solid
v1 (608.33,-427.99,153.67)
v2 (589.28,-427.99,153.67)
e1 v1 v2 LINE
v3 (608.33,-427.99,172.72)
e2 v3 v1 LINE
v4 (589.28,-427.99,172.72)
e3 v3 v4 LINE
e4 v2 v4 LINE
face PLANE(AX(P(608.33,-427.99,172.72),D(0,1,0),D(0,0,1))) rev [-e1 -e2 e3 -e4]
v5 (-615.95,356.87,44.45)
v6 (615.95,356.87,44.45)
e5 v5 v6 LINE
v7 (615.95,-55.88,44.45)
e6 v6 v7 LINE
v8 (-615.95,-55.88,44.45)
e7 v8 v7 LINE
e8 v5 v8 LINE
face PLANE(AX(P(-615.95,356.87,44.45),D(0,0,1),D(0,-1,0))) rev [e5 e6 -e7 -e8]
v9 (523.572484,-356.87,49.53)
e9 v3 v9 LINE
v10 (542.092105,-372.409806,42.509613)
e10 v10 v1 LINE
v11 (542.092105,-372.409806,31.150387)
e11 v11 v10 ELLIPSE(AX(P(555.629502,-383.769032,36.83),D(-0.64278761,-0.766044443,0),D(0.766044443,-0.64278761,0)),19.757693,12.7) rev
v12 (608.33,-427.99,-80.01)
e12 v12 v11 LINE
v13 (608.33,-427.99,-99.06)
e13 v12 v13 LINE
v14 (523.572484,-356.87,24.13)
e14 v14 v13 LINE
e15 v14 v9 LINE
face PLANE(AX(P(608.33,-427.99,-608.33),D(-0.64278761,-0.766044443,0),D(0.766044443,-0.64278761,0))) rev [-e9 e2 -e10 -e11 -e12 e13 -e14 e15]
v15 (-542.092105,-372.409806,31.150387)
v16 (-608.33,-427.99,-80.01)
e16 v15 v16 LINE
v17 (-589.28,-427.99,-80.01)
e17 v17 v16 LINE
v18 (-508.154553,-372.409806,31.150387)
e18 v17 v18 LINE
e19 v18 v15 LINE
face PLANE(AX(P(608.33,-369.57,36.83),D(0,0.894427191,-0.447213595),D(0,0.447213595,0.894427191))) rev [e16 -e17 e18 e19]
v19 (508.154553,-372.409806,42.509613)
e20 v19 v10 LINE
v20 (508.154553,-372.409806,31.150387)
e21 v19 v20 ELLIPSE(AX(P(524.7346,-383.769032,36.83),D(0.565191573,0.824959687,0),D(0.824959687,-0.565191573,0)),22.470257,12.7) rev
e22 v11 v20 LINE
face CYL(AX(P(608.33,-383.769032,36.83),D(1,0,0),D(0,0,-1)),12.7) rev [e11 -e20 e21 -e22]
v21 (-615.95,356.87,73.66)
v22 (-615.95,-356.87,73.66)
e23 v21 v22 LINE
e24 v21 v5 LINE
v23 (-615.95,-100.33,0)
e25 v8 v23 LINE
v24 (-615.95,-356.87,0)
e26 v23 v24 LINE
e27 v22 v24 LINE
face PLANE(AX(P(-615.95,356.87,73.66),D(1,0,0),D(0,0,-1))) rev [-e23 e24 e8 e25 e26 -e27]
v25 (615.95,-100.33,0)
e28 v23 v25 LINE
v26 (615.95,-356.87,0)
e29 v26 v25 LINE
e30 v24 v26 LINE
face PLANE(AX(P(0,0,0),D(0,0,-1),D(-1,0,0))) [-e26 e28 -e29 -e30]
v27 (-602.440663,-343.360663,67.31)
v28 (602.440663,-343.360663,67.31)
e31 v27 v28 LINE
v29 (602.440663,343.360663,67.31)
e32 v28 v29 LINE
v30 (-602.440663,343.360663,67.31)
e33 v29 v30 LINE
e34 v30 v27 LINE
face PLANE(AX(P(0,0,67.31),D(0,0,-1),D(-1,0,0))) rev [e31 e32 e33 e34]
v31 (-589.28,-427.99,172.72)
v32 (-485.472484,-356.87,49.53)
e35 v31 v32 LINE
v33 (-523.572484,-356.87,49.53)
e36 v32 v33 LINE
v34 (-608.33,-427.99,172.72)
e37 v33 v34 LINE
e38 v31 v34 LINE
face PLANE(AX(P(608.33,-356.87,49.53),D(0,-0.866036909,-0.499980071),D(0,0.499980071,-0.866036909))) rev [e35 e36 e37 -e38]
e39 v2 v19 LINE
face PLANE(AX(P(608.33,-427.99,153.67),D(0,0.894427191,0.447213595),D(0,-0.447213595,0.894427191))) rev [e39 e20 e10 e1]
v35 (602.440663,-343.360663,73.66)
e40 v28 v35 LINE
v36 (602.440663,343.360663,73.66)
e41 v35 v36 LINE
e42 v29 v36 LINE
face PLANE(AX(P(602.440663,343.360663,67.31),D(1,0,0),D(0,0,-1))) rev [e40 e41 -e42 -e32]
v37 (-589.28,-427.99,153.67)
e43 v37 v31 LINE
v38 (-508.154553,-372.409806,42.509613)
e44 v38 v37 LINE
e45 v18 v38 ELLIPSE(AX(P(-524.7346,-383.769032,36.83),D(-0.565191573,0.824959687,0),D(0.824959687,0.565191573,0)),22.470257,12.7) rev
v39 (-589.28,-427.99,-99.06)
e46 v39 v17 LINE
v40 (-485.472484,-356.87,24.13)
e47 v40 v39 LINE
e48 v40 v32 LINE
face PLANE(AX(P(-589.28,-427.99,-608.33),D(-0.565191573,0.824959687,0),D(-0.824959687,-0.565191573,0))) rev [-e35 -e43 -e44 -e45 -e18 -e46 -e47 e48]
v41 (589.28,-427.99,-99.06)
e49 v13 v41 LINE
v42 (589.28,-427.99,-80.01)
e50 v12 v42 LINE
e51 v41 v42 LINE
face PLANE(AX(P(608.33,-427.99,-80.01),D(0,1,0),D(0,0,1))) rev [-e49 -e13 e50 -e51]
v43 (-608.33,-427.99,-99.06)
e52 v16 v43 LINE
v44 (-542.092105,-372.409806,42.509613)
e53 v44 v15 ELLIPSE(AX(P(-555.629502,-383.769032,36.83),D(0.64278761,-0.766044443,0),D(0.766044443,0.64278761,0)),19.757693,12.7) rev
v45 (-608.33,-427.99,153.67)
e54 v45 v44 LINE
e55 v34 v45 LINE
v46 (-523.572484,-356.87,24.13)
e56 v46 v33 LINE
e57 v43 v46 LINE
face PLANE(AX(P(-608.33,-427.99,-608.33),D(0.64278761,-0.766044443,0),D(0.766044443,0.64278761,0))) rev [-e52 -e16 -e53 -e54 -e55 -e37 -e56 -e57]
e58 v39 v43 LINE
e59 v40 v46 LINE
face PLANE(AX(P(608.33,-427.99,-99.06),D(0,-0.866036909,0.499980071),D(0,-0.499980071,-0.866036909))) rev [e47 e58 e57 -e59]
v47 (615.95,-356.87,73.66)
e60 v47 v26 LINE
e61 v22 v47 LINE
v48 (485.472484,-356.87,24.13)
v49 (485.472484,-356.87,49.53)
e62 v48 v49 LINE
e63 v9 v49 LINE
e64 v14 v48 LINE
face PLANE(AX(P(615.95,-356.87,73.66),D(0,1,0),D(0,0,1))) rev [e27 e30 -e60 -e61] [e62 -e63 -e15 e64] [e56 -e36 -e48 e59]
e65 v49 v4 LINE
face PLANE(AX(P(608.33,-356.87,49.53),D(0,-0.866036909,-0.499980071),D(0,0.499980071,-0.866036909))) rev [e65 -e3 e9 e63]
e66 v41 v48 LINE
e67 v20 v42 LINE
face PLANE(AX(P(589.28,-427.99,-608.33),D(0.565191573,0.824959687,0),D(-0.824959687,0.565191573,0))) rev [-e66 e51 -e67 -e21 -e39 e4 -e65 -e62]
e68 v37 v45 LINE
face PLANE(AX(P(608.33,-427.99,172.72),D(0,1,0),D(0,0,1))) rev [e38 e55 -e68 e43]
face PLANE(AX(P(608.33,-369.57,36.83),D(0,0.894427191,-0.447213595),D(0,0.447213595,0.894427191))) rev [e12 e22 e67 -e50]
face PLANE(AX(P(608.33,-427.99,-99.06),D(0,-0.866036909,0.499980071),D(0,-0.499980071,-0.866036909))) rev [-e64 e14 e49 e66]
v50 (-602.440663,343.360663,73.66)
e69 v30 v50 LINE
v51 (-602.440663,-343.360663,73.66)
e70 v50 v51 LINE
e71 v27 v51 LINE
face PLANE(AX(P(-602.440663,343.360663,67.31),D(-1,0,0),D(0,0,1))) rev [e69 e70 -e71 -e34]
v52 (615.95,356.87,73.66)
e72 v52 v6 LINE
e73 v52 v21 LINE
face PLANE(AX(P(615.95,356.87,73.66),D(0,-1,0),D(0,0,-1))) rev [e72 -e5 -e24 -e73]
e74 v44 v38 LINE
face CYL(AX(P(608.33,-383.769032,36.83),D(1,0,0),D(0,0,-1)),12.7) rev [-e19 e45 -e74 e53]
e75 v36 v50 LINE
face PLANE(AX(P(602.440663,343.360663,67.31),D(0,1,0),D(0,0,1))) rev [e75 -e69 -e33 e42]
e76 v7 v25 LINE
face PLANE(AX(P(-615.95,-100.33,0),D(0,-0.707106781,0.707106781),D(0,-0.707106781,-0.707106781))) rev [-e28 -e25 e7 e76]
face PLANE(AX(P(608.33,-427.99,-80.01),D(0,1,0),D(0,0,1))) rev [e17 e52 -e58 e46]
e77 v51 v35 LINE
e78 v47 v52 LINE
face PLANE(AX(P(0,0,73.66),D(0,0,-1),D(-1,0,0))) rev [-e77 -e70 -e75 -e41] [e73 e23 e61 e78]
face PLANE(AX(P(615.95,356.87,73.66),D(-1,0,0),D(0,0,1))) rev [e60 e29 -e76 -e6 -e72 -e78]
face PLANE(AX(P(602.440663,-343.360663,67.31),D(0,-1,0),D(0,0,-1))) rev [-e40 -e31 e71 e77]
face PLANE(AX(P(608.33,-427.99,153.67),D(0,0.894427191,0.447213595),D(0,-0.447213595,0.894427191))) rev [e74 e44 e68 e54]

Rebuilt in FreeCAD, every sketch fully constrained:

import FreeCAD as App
import Part
import Sketcher
from FreeCAD import Vector
Q = App.Units.Quantity


def edges_at(feature, points):
    """Names of the edges that pass closest to the given points."""
    edges = feature.Shape.Edges
    near = lambda p: min(range(len(edges)), key=lambda i: edges[i].distToShape(Part.Vertex(*p))[0])
    return sorted({f"Edge{near(p) + 1}" for p in points})

doc = App.newDocument("Part")
body = doc.addObject("PartDesign::Body", "Body")

# Sketch on XY plane
sketch1 = body.newObject("Sketcher::SketchObject", "Sketch")
sketch1.AttachmentSupport = (doc.getObject("XY_Plane"), [""])
sketch1.MapMode = "FlatFace"
sketch1.addGeometry(Part.LineSegment(Vector(-615.95, 356.87, 0), Vector(-615.95, -356.87, 0)), False)
sketch1.addGeometry(Part.LineSegment(Vector(-615.95, -356.87, 0), Vector(615.95, -356.87, 0)), False)
sketch1.addGeometry(Part.LineSegment(Vector(615.95, -356.87, 0), Vector(615.95, 356.87, 0)), False)
sketch1.addGeometry(Part.LineSegment(Vector(615.95, 356.87, 0), Vector(-615.95, 356.87, 0)), False)
sketch1.addConstraint(Sketcher.Constraint("Coincident", 0, 2, 1, 1))
sketch1.addConstraint(Sketcher.Constraint("Coincident", 1, 2, 2, 1))
sketch1.addConstraint(Sketcher.Constraint("Coincident", 2, 2, 3, 1))
sketch1.addConstraint(Sketcher.Constraint("Coincident", 3, 2, 0, 1))
sketch1.addConstraint(Sketcher.Constraint("Vertical", 0))
sketch1.addConstraint(Sketcher.Constraint("Horizontal", 1))
sketch1.addConstraint(Sketcher.Constraint("Vertical", 2))
sketch1.addConstraint(Sketcher.Constraint("Horizontal", 3))
sketch1.addConstraint(Sketcher.Constraint("Symmetric", 0, 2, 2, 2, -1, 1))
sketch1.addConstraint(Sketcher.Constraint("DistanceX", 1, 1, 1, 2, Q("48.5 in")))
sketch1.addConstraint(Sketcher.Constraint("DistanceY", 0, 2, 0, 1, Q("28.1 in")))
pad1 = body.newObject("PartDesign::Pad", "Pad")
pad1.Profile = sketch1
pad1.Length = Q("2.9 in")

# Sketch on YZ plane
sketch2 = body.newObject("Sketcher::SketchObject", "Sketch001")
sketch2.AttachmentSupport = (doc.getObject("YZ_Plane"), [""])
sketch2.MapMode = "FlatFace"
sketch2.addGeometry(Part.LineSegment(Vector(-356.87, 49.53, 0), Vector(-427.99, 172.72, 0)), False)
sketch2.addGeometry(Part.LineSegment(Vector(-427.99, 172.72, 0), Vector(-427.99, 153.67, 0)), False)
sketch2.addGeometry(Part.LineSegment(Vector(-427.99, 153.67, 0), Vector(-369.57, 36.83, 0)), False)
sketch2.addGeometry(Part.LineSegment(Vector(-369.57, 36.83, 0), Vector(-427.99, -80.01, 0)), False)
sketch2.addGeometry(Part.LineSegment(Vector(-427.99, -80.01, 0), Vector(-427.99, -99.06, 0)), False)
sketch2.addGeometry(Part.LineSegment(Vector(-427.99, -99.06, 0), Vector(-356.87, 24.13, 0)), False)
sketch2.addGeometry(Part.LineSegment(Vector(-356.87, 24.13, 0), Vector(-356.87, 49.53, 0)), False)
sketch2.addConstraint(Sketcher.Constraint("Coincident", 0, 2, 1, 1))
sketch2.addConstraint(Sketcher.Constraint("Coincident", 1, 2, 2, 1))
sketch2.addConstraint(Sketcher.Constraint("Coincident", 2, 2, 3, 1))
sketch2.addConstraint(Sketcher.Constraint("Coincident", 3, 2, 4, 1))
sketch2.addConstraint(Sketcher.Constraint("Coincident", 4, 2, 5, 1))
sketch2.addConstraint(Sketcher.Constraint("Coincident", 5, 2, 6, 1))
sketch2.addConstraint(Sketcher.Constraint("Coincident", 6, 2, 0, 1))
sketch2.addConstraint(Sketcher.Constraint("Vertical", 1))
sketch2.addConstraint(Sketcher.Constraint("Vertical", 4))
sketch2.addConstraint(Sketcher.Constraint("Vertical", 6))
sketch2.addConstraint(Sketcher.Constraint("Vertical", 1, 2, 3, 2))
sketch2.addConstraint(Sketcher.Constraint("Equal", 1, 4))
sketch2.addConstraint(Sketcher.Constraint("Equal", 2, 3))
sketch2.addConstraint(Sketcher.Constraint("Equal", 0, 5))
sketch2.addConstraint(Sketcher.Constraint("DistanceY", 6, 1, 6, 2, Q("1 in")))
sketch2.addConstraint(Sketcher.Constraint("DistanceY", 1, 2, 1, 1, Q("0.75 in")))
sketch2.addConstraint(Sketcher.Constraint("DistanceY", -1, 1, 0, 2, Q("6.8 in")))
sketch2.addConstraint(Sketcher.Constraint("DistanceY", 4, 2, -1, 1, Q("3.9 in")))
sketch2.addConstraint(Sketcher.Constraint("DistanceX", 1, 2, 2, 2, Q("2.3 in")))
sketch2.addConstraint(Sketcher.Constraint("DistanceX", 2, 2, 5, 2, Q("0.5 in")))
sketch2.addConstraint(Sketcher.Constraint("DistanceX", 0, 2, -1, 1, Q("16.85 in")))
pad2 = body.newObject("PartDesign::Pad", "Pad001")
pad2.Profile = sketch2
pad2.Length = Q("47.9 in")
pad2.Midplane = True
doc.recompute()

fillet = body.newObject("PartDesign::Fillet", "Fillet")
fillet.Base = (pad2, edges_at(pad2, [(0, -369.57, 36.83)]))
fillet.Radius = Q("0.5 in")

# Sketch on YZ plane
sketch3 = body.newObject("Sketcher::SketchObject", "Sketch002")
sketch3.AttachmentSupport = (doc.getObject("YZ_Plane"), [""])
sketch3.MapMode = "FlatFace"
sketch3.AttachmentOffset = App.Placement(Vector(0, 0, 24.25 * 25.4), App.Rotation())
sketch3.addGeometry(Part.LineSegment(Vector(356.87, 0, 0), Vector(356.87, 44.45, 0)), False)
sketch3.addGeometry(Part.LineSegment(Vector(356.87, 44.45, 0), Vector(-55.88, 44.45, 0)), False)
sketch3.addGeometry(Part.LineSegment(Vector(-55.88, 44.45, 0), Vector(-100.33, 0, 0)), False)
sketch3.addGeometry(Part.LineSegment(Vector(-100.33, 0, 0), Vector(356.87, 0, 0)), False)
sketch3.addConstraint(Sketcher.Constraint("Coincident", 0, 2, 1, 1))
sketch3.addConstraint(Sketcher.Constraint("Coincident", 1, 2, 2, 1))
sketch3.addConstraint(Sketcher.Constraint("Coincident", 2, 2, 3, 1))
sketch3.addConstraint(Sketcher.Constraint("Coincident", 3, 2, 0, 1))
sketch3.addConstraint(Sketcher.Constraint("Vertical", 0))
sketch3.addConstraint(Sketcher.Constraint("Horizontal", 1))
sketch3.addConstraint(Sketcher.Constraint("Horizontal", 3))
sketch3.addConstraint(Sketcher.Constraint("PointOnObject", 2, 2, -1))
sketch3.addConstraint(Sketcher.Constraint("DistanceX", 3, 1, 3, 2, Q("18 in")))
sketch3.addConstraint(Sketcher.Constraint("Angle", 2, Q("-135 deg")))
sketch3.addConstraint(Sketcher.Constraint("DistanceX", 1, 2, 1, 1, Q("16.25 in")))
sketch3.addConstraint(Sketcher.Constraint("DistanceX", 1, 2, -1, 1, Q("2.2 in")))
pocket1 = body.newObject("PartDesign::Pocket", "Pocket")
pocket1.Profile = sketch3
pocket1.Type = "ThroughAll"

# Sketch on XY plane
sketch4 = body.newObject("Sketcher::SketchObject", "Sketch003")
sketch4.AttachmentSupport = (doc.getObject("XY_Plane"), [""])
sketch4.MapMode = "FlatFace"
sketch4.addGeometry(Part.LineSegment(Vector(-608.33, -427.99, 0), Vector(-523.572484, -356.87, 0)), False)
sketch4.addGeometry(Part.LineSegment(Vector(-523.572484, -356.87, 0), Vector(-608.33, -356.87, 0)), False)
sketch4.addGeometry(Part.LineSegment(Vector(-608.33, -356.87, 0), Vector(-608.33, -427.99, 0)), False)
sketch4.addGeometry(Part.LineSegment(Vector(-485.472484, -356.87, 0), Vector(-589.28, -427.99, 0)), False)
sketch4.addGeometry(Part.LineSegment(Vector(-589.28, -427.99, 0), Vector(589.28, -427.99, 0)), False)
sketch4.addGeometry(Part.LineSegment(Vector(589.28, -427.99, 0), Vector(485.472484, -356.87, 0)), False)
sketch4.addGeometry(Part.LineSegment(Vector(485.472484, -356.87, 0), Vector(-485.472484, -356.87, 0)), False)
sketch4.addGeometry(Part.LineSegment(Vector(608.33, -427.99, 0), Vector(608.33, -356.87, 0)), False)
sketch4.addGeometry(Part.LineSegment(Vector(608.33, -356.87, 0), Vector(523.572484, -356.87, 0)), False)
sketch4.addGeometry(Part.LineSegment(Vector(523.572484, -356.87, 0), Vector(608.33, -427.99, 0)), False)
sketch4.addConstraint(Sketcher.Constraint("Coincident", 0, 2, 1, 1))
sketch4.addConstraint(Sketcher.Constraint("Coincident", 1, 2, 2, 1))
sketch4.addConstraint(Sketcher.Constraint("Coincident", 2, 2, 0, 1))
sketch4.addConstraint(Sketcher.Constraint("Coincident", 3, 2, 4, 1))
sketch4.addConstraint(Sketcher.Constraint("Coincident", 4, 2, 5, 1))
sketch4.addConstraint(Sketcher.Constraint("Coincident", 5, 2, 6, 1))
sketch4.addConstraint(Sketcher.Constraint("Coincident", 6, 2, 3, 1))
sketch4.addConstraint(Sketcher.Constraint("Coincident", 7, 2, 8, 1))
sketch4.addConstraint(Sketcher.Constraint("Coincident", 8, 2, 9, 1))
sketch4.addConstraint(Sketcher.Constraint("Coincident", 9, 2, 7, 1))
sketch4.addConstraint(Sketcher.Constraint("Horizontal", 1))
sketch4.addConstraint(Sketcher.Constraint("Vertical", 2))
sketch4.addConstraint(Sketcher.Constraint("Horizontal", 4))
sketch4.addConstraint(Sketcher.Constraint("Horizontal", 6))
sketch4.addConstraint(Sketcher.Constraint("Vertical", 7))
sketch4.addConstraint(Sketcher.Constraint("Horizontal", 8))
sketch4.addConstraint(Sketcher.Constraint("Symmetric", 1, 2, 7, 2, -2))
sketch4.addConstraint(Sketcher.Constraint("Horizontal", 2, 2, 3, 2))
sketch4.addConstraint(Sketcher.Constraint("Horizontal", 1, 2, 5, 2))
sketch4.addConstraint(Sketcher.Constraint("Horizontal", 4, 2, 9, 2))
sketch4.addConstraint(Sketcher.Constraint("Equal", 1, 8))
sketch4.addConstraint(Sketcher.Constraint("Equal", 3, 5))
sketch4.addConstraint(Sketcher.Constraint("DistanceX", 4, 1, 4, 2, Q("46.4 in")))
sketch4.addConstraint(Sketcher.Constraint("DistanceY", 2, 2, 2, 1, Q("2.8 in")))
sketch4.addConstraint(Sketcher.Constraint("Angle", 0, Q("40 deg")))
sketch4.addConstraint(Sketcher.Constraint("DistanceX", 3, 2, -1, 1, Q("23.2 in")))
sketch4.addConstraint(Sketcher.Constraint("DistanceX", 0, 2, 6, 2, Q("1.5 in")))
sketch4.addConstraint(Sketcher.Constraint("DistanceY", 0, 2, -1, 1, Q("14.05 in")))
sketch4.addConstraint(Sketcher.Constraint("DistanceX", 1, 2, -1, 1, Q("23.95 in")))
pocket2 = body.newObject("PartDesign::Pocket", "Pocket001")
pocket2.Profile = sketch4
pocket2.Length = Q("47.9 in")
pocket2.Midplane = True

# Sketch on XY plane
sketch5 = body.newObject("Sketcher::SketchObject", "Sketch004")
sketch5.AttachmentSupport = (doc.getObject("XY_Plane"), [""])
sketch5.MapMode = "FlatFace"
sketch5.AttachmentOffset = App.Placement(Vector(0, 0, 2.9 * 25.4), App.Rotation())
sketch5.addGeometry(Part.LineSegment(Vector(-602.440663, 343.360663, 0), Vector(-602.440663, -343.360663, 0)), False)
sketch5.addGeometry(Part.LineSegment(Vector(-602.440663, -343.360663, 0), Vector(602.440663, -343.360663, 0)), False)
sketch5.addGeometry(Part.LineSegment(Vector(602.440663, -343.360663, 0), Vector(602.440663, 343.360663, 0)), False)
sketch5.addGeometry(Part.LineSegment(Vector(602.440663, 343.360663, 0), Vector(-602.440663, 343.360663, 0)), False)
sketch5.addConstraint(Sketcher.Constraint("Coincident", 0, 2, 1, 1))
sketch5.addConstraint(Sketcher.Constraint("Coincident", 1, 2, 2, 1))
sketch5.addConstraint(Sketcher.Constraint("Coincident", 2, 2, 3, 1))
sketch5.addConstraint(Sketcher.Constraint("Coincident", 3, 2, 0, 1))
sketch5.addConstraint(Sketcher.Constraint("Vertical", 0))
sketch5.addConstraint(Sketcher.Constraint("Horizontal", 1))
sketch5.addConstraint(Sketcher.Constraint("Vertical", 2))
sketch5.addConstraint(Sketcher.Constraint("Horizontal", 3))
sketch5.addConstraint(Sketcher.Constraint("Symmetric", 0, 2, 2, 2, -1, 1))
sketch5.addConstraint(Sketcher.Constraint("DistanceX", 1, 1, 1, 2, 1204.881325))
sketch5.addConstraint(Sketcher.Constraint("DistanceY", 0, 2, 0, 1, 686.721325))
pocket3 = body.newObject("PartDesign::Pocket", "Pocket002")
pocket3.Profile = sketch5
pocket3.Length = Q("0.25 in")

doc.recompute()
